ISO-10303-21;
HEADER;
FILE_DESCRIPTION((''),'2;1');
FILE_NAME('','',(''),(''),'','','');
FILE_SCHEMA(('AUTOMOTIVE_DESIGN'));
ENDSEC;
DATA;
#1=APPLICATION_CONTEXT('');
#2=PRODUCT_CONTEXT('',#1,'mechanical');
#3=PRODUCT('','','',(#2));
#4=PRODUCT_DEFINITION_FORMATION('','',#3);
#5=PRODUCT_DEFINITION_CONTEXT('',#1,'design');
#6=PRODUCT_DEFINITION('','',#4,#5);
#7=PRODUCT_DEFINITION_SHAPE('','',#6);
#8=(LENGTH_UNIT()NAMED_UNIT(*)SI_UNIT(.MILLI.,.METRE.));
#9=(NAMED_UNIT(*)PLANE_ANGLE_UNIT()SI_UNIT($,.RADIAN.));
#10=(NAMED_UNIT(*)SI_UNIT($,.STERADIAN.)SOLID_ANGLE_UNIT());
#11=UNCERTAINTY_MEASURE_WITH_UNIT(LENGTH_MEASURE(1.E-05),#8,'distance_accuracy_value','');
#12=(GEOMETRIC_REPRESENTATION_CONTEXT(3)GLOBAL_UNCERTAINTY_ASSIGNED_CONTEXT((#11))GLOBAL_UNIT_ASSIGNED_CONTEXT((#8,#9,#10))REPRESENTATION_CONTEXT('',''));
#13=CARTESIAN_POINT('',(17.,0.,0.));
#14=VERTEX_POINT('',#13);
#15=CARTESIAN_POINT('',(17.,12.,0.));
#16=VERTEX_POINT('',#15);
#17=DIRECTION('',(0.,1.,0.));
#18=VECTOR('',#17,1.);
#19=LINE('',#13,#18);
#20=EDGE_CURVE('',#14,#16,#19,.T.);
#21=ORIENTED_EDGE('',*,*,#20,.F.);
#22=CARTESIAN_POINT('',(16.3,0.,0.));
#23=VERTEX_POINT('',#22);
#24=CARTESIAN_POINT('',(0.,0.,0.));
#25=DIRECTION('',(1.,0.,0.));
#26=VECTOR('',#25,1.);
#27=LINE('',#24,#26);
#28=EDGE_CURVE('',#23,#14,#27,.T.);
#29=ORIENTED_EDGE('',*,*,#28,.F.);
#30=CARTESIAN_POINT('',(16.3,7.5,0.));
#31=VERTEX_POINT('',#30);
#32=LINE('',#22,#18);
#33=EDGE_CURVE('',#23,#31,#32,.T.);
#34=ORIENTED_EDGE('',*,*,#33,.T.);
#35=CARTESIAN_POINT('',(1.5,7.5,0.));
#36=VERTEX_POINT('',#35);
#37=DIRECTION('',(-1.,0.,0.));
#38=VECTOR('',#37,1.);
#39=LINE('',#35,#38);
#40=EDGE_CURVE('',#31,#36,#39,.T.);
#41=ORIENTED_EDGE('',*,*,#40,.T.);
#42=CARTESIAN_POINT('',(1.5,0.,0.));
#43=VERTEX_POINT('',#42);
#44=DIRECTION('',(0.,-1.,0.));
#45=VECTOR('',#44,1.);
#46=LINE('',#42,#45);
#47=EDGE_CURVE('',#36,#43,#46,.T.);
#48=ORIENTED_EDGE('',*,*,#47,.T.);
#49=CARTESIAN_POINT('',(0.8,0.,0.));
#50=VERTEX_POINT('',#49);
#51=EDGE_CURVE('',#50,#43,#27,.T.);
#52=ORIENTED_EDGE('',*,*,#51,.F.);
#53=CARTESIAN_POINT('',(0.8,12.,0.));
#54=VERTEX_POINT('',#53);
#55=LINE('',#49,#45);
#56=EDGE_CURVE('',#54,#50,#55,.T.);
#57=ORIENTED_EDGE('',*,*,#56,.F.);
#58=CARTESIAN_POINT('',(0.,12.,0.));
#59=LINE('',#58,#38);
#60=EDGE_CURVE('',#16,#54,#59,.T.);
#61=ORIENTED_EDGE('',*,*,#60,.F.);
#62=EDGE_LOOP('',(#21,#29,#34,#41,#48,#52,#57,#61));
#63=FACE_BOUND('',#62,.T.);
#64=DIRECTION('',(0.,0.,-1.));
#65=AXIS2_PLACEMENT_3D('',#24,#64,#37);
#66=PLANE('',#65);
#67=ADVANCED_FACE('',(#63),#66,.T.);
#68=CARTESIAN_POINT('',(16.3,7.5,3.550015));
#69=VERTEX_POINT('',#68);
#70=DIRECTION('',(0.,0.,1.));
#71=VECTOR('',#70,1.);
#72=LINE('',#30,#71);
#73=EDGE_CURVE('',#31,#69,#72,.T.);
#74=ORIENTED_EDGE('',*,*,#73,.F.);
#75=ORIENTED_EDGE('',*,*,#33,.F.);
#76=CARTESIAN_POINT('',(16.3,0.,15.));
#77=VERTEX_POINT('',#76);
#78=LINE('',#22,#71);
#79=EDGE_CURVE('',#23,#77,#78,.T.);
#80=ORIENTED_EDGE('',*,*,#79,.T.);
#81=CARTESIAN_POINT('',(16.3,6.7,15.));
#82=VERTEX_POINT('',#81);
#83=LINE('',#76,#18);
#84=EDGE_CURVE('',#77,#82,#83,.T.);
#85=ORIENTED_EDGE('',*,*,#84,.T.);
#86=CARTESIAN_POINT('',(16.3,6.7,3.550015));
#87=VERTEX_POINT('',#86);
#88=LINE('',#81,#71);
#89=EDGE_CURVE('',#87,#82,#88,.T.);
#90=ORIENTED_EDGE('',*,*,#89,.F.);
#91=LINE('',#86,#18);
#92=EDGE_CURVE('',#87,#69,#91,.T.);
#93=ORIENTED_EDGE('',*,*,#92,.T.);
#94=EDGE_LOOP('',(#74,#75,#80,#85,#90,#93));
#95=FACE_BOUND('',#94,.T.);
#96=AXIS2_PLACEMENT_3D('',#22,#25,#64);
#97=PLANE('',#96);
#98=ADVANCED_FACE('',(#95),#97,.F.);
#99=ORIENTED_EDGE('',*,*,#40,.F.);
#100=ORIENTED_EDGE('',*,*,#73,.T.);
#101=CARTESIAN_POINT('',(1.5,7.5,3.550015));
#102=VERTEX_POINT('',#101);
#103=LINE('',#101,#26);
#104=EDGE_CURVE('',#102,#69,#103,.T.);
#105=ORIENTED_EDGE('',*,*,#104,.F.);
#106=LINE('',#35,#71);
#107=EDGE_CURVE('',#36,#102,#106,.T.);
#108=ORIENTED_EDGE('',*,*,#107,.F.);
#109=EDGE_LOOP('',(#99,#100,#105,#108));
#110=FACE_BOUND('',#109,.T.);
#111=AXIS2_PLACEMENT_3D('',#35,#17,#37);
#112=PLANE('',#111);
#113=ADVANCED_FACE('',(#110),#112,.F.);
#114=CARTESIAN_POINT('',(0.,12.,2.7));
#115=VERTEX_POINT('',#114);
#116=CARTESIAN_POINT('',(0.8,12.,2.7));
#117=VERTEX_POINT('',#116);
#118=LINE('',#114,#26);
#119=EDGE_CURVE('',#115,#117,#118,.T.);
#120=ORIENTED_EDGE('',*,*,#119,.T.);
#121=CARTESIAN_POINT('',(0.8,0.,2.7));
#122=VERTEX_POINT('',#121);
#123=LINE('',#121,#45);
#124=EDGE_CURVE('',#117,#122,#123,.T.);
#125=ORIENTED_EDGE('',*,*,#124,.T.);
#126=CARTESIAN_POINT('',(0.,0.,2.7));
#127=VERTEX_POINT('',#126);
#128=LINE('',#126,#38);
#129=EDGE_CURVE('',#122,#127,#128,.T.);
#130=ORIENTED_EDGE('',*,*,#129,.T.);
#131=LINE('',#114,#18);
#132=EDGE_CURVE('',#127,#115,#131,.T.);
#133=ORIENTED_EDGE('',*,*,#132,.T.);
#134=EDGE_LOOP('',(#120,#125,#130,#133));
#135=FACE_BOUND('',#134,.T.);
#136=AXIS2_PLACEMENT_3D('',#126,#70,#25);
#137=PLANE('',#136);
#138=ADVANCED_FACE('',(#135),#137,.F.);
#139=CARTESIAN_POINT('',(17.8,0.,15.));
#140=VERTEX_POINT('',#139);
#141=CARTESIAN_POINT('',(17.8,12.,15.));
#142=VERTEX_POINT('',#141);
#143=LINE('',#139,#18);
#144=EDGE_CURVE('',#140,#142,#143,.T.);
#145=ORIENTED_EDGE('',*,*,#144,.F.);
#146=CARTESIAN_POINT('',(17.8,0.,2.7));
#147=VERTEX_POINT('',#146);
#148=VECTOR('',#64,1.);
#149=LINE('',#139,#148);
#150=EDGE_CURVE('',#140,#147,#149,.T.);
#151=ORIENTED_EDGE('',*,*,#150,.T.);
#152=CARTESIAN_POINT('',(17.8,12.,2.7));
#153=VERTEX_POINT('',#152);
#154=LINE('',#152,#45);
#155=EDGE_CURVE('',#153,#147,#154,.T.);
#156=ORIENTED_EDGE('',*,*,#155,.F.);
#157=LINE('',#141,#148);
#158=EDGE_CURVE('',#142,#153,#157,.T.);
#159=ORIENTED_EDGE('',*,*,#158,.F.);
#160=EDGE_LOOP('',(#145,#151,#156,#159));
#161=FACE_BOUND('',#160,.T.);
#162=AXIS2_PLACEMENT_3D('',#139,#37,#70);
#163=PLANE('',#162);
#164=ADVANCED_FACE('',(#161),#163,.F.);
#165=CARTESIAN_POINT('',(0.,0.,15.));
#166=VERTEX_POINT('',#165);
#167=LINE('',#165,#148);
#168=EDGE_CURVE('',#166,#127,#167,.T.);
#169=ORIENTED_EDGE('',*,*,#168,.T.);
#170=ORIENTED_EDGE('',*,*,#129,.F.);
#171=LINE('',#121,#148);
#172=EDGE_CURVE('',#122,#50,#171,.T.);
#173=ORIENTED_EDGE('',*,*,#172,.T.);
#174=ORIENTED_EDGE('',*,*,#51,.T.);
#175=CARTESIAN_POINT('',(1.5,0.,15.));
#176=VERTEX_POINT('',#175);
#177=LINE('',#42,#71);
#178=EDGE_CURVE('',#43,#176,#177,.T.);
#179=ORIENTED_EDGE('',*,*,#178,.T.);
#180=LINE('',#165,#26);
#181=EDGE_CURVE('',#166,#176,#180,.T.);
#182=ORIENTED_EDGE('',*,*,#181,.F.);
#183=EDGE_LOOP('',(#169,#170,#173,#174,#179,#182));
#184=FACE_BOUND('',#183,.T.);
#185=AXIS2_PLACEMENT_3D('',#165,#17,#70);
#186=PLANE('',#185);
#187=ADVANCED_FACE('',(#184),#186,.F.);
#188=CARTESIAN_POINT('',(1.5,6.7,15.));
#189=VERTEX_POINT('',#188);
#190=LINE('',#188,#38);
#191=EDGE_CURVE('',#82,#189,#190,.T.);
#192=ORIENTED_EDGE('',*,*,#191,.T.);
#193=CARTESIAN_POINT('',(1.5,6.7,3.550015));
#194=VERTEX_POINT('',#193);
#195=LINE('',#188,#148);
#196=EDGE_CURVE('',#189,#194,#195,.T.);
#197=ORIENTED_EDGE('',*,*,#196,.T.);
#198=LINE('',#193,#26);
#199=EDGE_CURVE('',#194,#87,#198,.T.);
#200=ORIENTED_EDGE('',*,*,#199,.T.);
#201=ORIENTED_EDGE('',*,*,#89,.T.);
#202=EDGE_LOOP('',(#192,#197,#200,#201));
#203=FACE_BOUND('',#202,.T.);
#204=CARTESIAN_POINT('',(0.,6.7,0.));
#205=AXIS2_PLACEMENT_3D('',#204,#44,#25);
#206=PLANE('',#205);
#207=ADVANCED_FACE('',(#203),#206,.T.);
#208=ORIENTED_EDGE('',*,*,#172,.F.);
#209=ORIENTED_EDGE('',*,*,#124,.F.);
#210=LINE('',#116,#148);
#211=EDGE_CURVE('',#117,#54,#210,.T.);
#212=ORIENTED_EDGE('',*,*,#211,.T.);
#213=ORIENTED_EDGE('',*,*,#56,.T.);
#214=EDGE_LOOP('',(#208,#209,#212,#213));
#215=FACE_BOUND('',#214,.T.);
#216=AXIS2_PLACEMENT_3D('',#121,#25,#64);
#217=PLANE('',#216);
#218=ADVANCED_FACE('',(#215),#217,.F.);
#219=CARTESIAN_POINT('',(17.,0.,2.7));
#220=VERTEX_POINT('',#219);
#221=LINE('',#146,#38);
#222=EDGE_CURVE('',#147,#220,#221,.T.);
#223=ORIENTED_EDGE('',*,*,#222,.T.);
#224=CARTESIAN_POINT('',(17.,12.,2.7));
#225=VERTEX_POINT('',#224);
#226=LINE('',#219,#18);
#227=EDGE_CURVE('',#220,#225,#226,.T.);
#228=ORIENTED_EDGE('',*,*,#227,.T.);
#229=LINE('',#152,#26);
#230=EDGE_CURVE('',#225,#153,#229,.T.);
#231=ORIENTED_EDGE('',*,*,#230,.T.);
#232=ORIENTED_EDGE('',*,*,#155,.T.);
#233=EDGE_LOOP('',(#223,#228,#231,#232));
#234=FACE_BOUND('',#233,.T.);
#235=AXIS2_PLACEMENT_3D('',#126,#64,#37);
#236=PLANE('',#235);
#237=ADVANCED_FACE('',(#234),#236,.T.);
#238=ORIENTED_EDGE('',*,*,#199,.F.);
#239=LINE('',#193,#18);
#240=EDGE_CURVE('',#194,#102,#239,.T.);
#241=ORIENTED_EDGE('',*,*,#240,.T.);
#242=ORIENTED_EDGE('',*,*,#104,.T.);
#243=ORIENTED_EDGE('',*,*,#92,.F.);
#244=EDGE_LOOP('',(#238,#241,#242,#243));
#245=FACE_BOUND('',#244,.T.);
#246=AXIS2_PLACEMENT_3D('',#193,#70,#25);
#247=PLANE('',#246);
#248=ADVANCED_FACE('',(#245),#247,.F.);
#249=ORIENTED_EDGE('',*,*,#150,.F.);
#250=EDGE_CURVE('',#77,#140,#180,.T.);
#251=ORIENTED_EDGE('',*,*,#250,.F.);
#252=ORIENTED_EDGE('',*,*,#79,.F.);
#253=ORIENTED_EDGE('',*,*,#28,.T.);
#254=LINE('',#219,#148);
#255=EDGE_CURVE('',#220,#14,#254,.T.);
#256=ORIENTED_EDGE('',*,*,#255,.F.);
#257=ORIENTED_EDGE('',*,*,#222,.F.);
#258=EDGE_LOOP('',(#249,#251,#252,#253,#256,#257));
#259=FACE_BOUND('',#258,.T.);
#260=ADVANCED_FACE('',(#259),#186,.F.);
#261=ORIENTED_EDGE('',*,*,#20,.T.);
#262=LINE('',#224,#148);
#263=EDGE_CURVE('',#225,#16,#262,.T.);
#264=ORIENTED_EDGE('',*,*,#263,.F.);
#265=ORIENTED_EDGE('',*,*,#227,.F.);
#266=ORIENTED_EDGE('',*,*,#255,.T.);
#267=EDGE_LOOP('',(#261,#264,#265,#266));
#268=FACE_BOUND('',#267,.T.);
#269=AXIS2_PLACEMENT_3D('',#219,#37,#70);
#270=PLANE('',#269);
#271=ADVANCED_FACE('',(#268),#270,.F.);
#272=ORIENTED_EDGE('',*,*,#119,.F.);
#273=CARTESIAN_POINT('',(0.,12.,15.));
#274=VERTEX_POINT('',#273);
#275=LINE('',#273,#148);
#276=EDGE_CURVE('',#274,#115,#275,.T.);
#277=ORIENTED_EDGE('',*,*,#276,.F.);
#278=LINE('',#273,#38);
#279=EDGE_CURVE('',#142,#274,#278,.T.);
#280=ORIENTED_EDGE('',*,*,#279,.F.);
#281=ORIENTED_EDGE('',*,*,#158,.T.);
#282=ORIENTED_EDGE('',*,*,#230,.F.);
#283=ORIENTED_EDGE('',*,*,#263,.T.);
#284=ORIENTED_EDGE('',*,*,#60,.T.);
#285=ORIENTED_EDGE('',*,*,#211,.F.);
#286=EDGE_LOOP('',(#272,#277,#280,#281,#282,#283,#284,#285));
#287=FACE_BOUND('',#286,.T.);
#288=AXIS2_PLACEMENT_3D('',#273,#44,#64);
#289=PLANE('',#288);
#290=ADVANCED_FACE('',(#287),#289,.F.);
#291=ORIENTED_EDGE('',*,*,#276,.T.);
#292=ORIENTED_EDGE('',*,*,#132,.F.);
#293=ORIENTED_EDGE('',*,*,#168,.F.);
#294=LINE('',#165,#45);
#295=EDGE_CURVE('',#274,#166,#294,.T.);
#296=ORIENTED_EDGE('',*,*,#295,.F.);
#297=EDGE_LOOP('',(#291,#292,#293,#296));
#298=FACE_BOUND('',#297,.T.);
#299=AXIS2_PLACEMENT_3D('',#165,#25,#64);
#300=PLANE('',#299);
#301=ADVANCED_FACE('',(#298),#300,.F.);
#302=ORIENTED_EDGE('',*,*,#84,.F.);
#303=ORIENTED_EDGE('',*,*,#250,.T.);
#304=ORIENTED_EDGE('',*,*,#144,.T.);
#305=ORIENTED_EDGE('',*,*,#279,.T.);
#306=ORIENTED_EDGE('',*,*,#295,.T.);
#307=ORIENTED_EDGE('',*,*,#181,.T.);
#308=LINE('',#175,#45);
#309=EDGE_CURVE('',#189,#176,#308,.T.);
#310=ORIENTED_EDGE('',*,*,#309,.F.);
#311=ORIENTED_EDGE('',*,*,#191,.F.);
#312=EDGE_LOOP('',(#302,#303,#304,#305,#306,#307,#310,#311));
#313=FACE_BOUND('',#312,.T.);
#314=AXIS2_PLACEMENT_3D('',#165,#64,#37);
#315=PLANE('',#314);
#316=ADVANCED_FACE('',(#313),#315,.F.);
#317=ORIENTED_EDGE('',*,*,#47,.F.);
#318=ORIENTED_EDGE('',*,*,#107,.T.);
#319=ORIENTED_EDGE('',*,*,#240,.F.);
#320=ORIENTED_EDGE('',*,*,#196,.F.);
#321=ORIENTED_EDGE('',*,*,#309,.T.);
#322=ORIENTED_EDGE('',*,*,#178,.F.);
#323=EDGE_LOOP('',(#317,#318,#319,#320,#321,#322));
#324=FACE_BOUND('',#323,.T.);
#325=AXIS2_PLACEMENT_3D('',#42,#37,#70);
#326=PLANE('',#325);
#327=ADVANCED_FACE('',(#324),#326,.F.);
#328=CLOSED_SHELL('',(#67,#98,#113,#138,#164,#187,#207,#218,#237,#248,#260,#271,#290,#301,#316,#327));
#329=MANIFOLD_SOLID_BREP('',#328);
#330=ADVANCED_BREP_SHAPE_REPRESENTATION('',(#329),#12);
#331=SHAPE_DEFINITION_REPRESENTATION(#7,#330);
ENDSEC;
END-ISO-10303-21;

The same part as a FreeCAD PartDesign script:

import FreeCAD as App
import Part
import Sketcher

doc = App.newDocument("Part")
body = doc.addObject("PartDesign::Body", "Body")

sketch1 = body.newObject("Sketcher::SketchObject", "Sketch")
sketch1.AttachmentSupport = (doc.getObject("XY_Plane"), [""])
sketch1.MapMode = "FlatFace"
sketch1.addGeometry([
    Part.LineSegment(App.Vector(0, 12, 0), App.Vector(0, 0, 0)),
    Part.LineSegment(App.Vector(0, 0, 0), App.Vector(17.8, 0, 0)),
    Part.LineSegment(App.Vector(17.8, 0, 0), App.Vector(17.8, 12, 0)),
    Part.LineSegment(App.Vector(17.8, 12, 0), App.Vector(0, 12, 0)),
], False)
sketch1.addConstraint([
    Sketcher.Constraint("Coincident", 0, 2, 1, 1),
    Sketcher.Constraint("Coincident", 1, 2, 2, 1),
    Sketcher.Constraint("Coincident", 2, 2, 3, 1),
    Sketcher.Constraint("Coincident", 3, 2, 0, 1),
    Sketcher.Constraint("Vertical", 0),
    Sketcher.Constraint("Horizontal", 1),
    Sketcher.Constraint("Vertical", 2),
    Sketcher.Constraint("Horizontal", 3),
    Sketcher.Constraint("Coincident", 0, 2, -1, 1),
    Sketcher.Constraint("DistanceY", 0, 2, 0, 1, 12.0),
    Sketcher.Constraint("DistanceX", 1, 1, 1, 2, 17.8),
])
pad1 = body.newObject("PartDesign::Pad", "Pad")
pad1.Profile = sketch1
pad1.Length = 15

sketch2 = body.newObject("Sketcher::SketchObject", "Sketch001")
sketch2.AttachmentSupport = (doc.getObject("XY_Plane"), [""])
sketch2.MapMode = "FlatFace"
sketch2.AttachmentOffset = App.Placement(App.Vector(0, 0, 15), App.Rotation())
sketch2.addGeometry([
    Part.LineSegment(App.Vector(1.5, 7.5, 0), App.Vector(1.5, 0, 0)),
    Part.LineSegment(App.Vector(1.5, 0, 0), App.Vector(16.3, 0, 0)),
    Part.LineSegment(App.Vector(16.3, 0, 0), App.Vector(16.3, 7.5, 0)),
    Part.LineSegment(App.Vector(16.3, 7.5, 0), App.Vector(1.5, 7.5, 0)),
], False)
sketch2.addConstraint([
    Sketcher.Constraint("Coincident", 0, 2, 1, 1),
    Sketcher.Constraint("Coincident", 1, 2, 2, 1),
    Sketcher.Constraint("Coincident", 2, 2, 3, 1),
    Sketcher.Constraint("Coincident", 3, 2, 0, 1),
    Sketcher.Constraint("Vertical", 0),
    Sketcher.Constraint("Horizontal", 1),
    Sketcher.Constraint("Vertical", 2),
    Sketcher.Constraint("Horizontal", 3),
    Sketcher.Constraint("PointOnObject", 0, 2, -1),
    Sketcher.Constraint("DistanceX", 1, 1, 1, 2, 14.8),
    Sketcher.Constraint("DistanceY", 0, 2, 0, 1, 7.5),
    Sketcher.Constraint("DistanceX", -1, 1, 0, 2, 1.5),
])
pocket1 = body.newObject("PartDesign::Pocket", "Pocket")
pocket1.Profile = sketch2
pocket1.Type = "ThroughAll"

sketch3 = body.newObject("Sketcher::SketchObject", "Sketch002")
sketch3.AttachmentSupport = (doc.getObject("XZ_Plane"), [""])
sketch3.MapMode = "FlatFace"
sketch3.AttachmentOffset = App.Placement(App.Vector(0, 0, -7.5), App.Rotation())
sketch3.addGeometry([
    Part.LineSegment(App.Vector(1.5, 15, 0), App.Vector(1.5, 3.550015, 0)),
    Part.LineSegment(App.Vector(1.5, 3.550015, 0), App.Vector(16.3, 3.550015, 0)),
    Part.LineSegment(App.Vector(16.3, 3.550015, 0), App.Vector(16.3, 15, 0)),
    Part.LineSegment(App.Vector(16.3, 15, 0), App.Vector(1.5, 15, 0)),
], False)
sketch3.addConstraint([
    Sketcher.Constraint("Coincident", 0, 2, 1, 1),
    Sketcher.Constraint("Coincident", 1, 2, 2, 1),
    Sketcher.Constraint("Coincident", 2, 2, 3, 1),
    Sketcher.Constraint("Coincident", 3, 2, 0, 1),
    Sketcher.Constraint("Vertical", 0),
    Sketcher.Constraint("Horizontal", 1),
    Sketcher.Constraint("Vertical", 2),
    Sketcher.Constraint("Horizontal", 3),
    Sketcher.Constraint("DistanceX", 1, 1, 1, 2, 14.8),
    Sketcher.Constraint("DistanceY", -1, 1, 2, 2, 15.0),
    Sketcher.Constraint("DistanceX", -1, 1, 0, 2, 1.5),
    Sketcher.Constraint("DistanceY", 0, 2, 0, 1, 11.449985),
])
pad2 = body.newObject("PartDesign::Pad", "Pad001")
pad2.Profile = sketch3
pad2.Length = 0.8

sketch4 = body.newObject("Sketcher::SketchObject", "Sketch003")
sketch4.AttachmentSupport = (doc.getObject("XY_Plane"), [""])
sketch4.MapMode = "FlatFace"
sketch4.addGeometry([
    Part.LineSegment(App.Vector(17.8, 12, 0), App.Vector(17.8, 0, 0)),
    Part.LineSegment(App.Vector(17.8, 0, 0), App.Vector(17, 0, 0)),
    Part.LineSegment(App.Vector(17, 0, 0), App.Vector(17, 12, 0)),
    Part.LineSegment(App.Vector(17, 12, 0), App.Vector(17.8, 12, 0)),
    Part.LineSegment(App.Vector(0.8, 12, 0), App.Vector(0.8, 0, 0)),
    Part.LineSegment(App.Vector(0.8, 0, 0), App.Vector(0, 0, 0)),
    Part.LineSegment(App.Vector(0, 0, 0), App.Vector(0, 12, 0)),
    Part.LineSegment(App.Vector(0, 12, 0), App.Vector(0.8, 12, 0)),
], False)
sketch4.addConstraint([
    Sketcher.Constraint("Coincident", 0, 2, 1, 1),
    Sketcher.Constraint("Coincident", 1, 2, 2, 1),
    Sketcher.Constraint("Coincident", 2, 2, 3, 1),
    Sketcher.Constraint("Coincident", 3, 2, 0, 1),
    Sketcher.Constraint("Coincident", 4, 2, 5, 1),
    Sketcher.Constraint("Coincident", 5, 2, 6, 1),
    Sketcher.Constraint("Coincident", 6, 2, 7, 1),
    Sketcher.Constraint("Coincident", 7, 2, 4, 1),
    Sketcher.Constraint("Vertical", 0),
    Sketcher.Constraint("Horizontal", 1),
    Sketcher.Constraint("Vertical", 2),
    Sketcher.Constraint("Horizontal", 3),
    Sketcher.Constraint("Vertical", 4),
    Sketcher.Constraint("Horizontal", 5),
    Sketcher.Constraint("Vertical", 6),
    Sketcher.Constraint("Horizontal", 7),
    Sketcher.Constraint("Coincident", 5, 2, -1, 1),
    Sketcher.Constraint("PointOnObject", 0, 2, -1),
    Sketcher.Constraint("Horizontal", 3, 2, 6, 2),
    Sketcher.Constraint("Equal", 3, 5),
    Sketcher.Constraint("DistanceY", 0, 2, 0, 1, 12.0),
    Sketcher.Constraint("DistanceX", 1, 2, 1, 1, 0.8),
    Sketcher.Constraint("DistanceX", -1, 1, 1, 2, 17.0),
])
pocket2 = body.newObject("PartDesign::Pocket", "Pocket001")
pocket2.Profile = sketch4
pocket2.Length = 2.7
pocket2.Reversed = True

doc.recompute()
